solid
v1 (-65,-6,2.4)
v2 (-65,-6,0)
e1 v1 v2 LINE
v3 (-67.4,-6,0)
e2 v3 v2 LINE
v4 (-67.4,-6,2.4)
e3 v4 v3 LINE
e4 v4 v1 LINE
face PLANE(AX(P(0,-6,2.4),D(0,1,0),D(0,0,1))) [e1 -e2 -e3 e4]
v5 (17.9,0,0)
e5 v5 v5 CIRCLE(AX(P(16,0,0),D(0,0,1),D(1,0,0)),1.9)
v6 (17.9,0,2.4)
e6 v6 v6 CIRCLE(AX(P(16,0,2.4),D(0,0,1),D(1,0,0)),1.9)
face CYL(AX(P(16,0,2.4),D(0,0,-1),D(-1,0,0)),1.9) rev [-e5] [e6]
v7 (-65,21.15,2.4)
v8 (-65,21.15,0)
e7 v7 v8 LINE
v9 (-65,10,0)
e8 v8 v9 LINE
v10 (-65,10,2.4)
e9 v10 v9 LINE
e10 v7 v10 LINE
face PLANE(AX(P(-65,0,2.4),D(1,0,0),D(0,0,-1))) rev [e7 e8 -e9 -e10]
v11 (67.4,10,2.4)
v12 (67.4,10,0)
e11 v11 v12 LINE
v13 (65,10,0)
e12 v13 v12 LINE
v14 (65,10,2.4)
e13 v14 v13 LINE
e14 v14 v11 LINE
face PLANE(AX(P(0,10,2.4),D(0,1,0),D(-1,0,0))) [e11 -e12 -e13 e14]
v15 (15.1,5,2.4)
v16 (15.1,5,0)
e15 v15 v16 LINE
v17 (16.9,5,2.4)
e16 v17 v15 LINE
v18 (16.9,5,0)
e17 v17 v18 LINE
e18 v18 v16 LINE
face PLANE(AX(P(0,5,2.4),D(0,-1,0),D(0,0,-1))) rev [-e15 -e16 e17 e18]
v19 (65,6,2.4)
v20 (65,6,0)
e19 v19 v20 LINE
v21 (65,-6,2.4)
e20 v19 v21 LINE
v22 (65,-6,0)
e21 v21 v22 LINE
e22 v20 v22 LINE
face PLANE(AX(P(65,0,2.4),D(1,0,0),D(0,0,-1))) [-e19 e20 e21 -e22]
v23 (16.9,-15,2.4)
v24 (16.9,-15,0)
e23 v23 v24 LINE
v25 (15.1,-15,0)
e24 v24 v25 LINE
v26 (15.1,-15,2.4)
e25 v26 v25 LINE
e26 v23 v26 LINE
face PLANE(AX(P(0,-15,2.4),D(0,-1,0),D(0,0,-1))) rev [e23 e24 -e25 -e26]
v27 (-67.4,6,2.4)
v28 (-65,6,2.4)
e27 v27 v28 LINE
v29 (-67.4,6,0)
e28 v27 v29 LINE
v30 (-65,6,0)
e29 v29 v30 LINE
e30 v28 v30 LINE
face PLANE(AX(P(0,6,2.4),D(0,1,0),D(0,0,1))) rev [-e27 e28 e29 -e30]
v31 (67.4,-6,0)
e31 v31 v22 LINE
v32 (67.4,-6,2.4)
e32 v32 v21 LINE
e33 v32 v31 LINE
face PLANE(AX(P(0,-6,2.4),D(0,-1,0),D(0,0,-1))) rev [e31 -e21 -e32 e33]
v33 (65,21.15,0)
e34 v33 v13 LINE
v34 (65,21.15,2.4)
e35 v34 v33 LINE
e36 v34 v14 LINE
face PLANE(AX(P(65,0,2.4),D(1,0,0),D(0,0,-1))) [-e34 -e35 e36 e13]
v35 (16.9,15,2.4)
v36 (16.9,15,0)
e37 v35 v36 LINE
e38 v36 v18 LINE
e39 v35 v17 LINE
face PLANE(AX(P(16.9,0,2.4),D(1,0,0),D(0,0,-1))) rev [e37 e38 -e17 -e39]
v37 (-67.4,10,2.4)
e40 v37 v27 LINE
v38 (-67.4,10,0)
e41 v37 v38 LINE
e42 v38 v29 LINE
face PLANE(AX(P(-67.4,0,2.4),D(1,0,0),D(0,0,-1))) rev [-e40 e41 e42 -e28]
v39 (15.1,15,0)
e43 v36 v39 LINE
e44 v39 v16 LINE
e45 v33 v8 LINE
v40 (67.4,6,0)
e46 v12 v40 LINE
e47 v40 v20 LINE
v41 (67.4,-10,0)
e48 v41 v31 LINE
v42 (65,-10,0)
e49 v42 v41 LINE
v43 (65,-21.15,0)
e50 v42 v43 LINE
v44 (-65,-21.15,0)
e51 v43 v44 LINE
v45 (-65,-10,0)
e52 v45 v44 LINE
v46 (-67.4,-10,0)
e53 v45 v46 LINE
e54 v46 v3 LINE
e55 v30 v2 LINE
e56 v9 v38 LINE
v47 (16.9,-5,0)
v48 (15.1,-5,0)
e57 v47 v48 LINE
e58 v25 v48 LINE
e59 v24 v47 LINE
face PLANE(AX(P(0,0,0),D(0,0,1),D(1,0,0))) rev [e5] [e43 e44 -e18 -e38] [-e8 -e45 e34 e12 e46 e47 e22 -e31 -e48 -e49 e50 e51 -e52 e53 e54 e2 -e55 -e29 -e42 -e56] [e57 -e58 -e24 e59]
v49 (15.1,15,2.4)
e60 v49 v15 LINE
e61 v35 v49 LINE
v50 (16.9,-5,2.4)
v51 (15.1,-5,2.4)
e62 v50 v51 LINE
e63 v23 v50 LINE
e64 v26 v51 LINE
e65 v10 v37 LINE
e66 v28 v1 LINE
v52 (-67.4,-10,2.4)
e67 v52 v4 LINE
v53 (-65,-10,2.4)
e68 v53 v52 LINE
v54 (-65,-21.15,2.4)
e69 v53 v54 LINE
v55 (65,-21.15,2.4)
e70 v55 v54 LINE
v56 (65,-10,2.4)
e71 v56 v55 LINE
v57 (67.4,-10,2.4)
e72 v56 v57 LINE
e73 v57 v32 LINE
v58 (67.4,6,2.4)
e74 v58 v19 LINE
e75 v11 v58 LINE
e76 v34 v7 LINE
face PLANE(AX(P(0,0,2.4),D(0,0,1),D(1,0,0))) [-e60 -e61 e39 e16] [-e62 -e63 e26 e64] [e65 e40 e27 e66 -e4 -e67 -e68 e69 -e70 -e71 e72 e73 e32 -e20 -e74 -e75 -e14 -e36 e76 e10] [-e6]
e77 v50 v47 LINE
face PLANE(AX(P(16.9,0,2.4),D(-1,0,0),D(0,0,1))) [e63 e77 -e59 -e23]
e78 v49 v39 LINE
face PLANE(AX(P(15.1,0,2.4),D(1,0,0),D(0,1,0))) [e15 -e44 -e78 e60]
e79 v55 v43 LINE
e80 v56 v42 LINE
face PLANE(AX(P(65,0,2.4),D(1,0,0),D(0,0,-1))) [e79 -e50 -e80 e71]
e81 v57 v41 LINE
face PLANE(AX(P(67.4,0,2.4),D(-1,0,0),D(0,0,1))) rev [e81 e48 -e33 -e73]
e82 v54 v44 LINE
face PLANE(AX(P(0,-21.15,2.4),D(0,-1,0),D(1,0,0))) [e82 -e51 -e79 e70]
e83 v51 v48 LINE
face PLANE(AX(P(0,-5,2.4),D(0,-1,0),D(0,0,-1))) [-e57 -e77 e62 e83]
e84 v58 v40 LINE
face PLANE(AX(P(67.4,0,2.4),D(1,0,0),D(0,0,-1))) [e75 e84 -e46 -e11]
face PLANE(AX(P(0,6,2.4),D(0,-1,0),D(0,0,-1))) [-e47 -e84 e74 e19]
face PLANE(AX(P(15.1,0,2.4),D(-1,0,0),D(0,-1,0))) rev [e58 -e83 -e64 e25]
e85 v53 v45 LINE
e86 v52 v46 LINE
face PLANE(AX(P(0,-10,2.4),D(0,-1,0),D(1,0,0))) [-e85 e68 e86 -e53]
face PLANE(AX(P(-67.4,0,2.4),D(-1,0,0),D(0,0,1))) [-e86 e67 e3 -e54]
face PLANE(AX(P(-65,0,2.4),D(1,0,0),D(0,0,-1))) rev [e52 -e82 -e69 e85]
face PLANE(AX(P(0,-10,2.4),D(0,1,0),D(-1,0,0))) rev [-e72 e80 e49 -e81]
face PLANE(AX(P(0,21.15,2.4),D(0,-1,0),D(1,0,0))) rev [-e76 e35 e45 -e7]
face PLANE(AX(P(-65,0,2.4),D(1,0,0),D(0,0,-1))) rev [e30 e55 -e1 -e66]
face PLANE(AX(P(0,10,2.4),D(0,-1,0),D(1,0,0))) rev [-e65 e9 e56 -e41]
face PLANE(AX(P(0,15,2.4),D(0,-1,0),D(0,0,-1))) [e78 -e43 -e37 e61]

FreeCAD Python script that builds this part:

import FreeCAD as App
import Part
import Sketcher

doc = App.newDocument("Part")
body = doc.addObject("PartDesign::Body", "Body")

# Sketch on XY plane
sketch1 = body.newObject("Sketcher::SketchObject", "Sketch")
sketch1.AttachmentSupport = (doc.getObject("XY_Plane"), [""])
sketch1.MapMode = "FlatFace"
sketch1.addGeometry(Part.LineSegment(App.Vector(65, 21.1, 0), App.Vector(-65, 21.1, 0)), False)
sketch1.addGeometry(Part.LineSegment(App.Vector(-65, 21.1, 0), App.Vector(-65, 10, 0)), False)
sketch1.addGeometry(Part.LineSegment(App.Vector(-65, 10, 0), App.Vector(-67.4, 10, 0)), False)
sketch1.addGeometry(Part.LineSegment(App.Vector(-67.4, 10, 0), App.Vector(-67.4, 6, 0)), False)
sketch1.addGeometry(Part.LineSegment(App.Vector(-67.4, 6, 0), App.Vector(-65, 6, 0)), False)
sketch1.addGeometry(Part.LineSegment(App.Vector(-65, 6, 0), App.Vector(-65, -6, 0)), False)
sketch1.addGeometry(Part.LineSegment(App.Vector(-65, -6, 0), App.Vector(-67.4, -6, 0)), False)
sketch1.addGeometry(Part.LineSegment(App.Vector(-67.4, -6, 0), App.Vector(-67.4, -10, 0)), False)
sketch1.addGeometry(Part.LineSegment(App.Vector(-67.4, -10, 0), App.Vector(-65, -10, 0)), False)
sketch1.addGeometry(Part.LineSegment(App.Vector(-65, -10, 0), App.Vector(-65, -21.1, 0)), False)
sketch1.addGeometry(Part.LineSegment(App.Vector(-65, -21.1, 0), App.Vector(65, -21.1, 0)), False)
sketch1.addGeometry(Part.LineSegment(App.Vector(65, -21.1, 0), App.Vector(65, -10, 0)), False)
sketch1.addGeometry(Part.LineSegment(App.Vector(65, -10, 0), App.Vector(67.4, -10, 0)), False)
sketch1.addGeometry(Part.LineSegment(App.Vector(67.4, -10, 0), App.Vector(67.4, -6, 0)), False)
sketch1.addGeometry(Part.LineSegment(App.Vector(67.4, -6, 0), App.Vector(65, -6, 0)), False)
sketch1.addGeometry(Part.LineSegment(App.Vector(65, -6, 0), App.Vector(65, 6, 0)), False)
sketch1.addGeometry(Part.LineSegment(App.Vector(65, 6, 0), App.Vector(67.4, 6, 0)), False)
sketch1.addGeometry(Part.LineSegment(App.Vector(67.4, 6, 0), App.Vector(67.4, 10, 0)), False)
sketch1.addGeometry(Part.LineSegment(App.Vector(67.4, 10, 0), App.Vector(65, 10, 0)), False)
sketch1.addGeometry(Part.LineSegment(App.Vector(65, 10, 0), App.Vector(65, 21.1, 0)), False)
sketch1.addGeometry(Part.LineSegment(App.Vector(16.9, -15, 0), App.Vector(15.1, -15, 0)), False)
sketch1.addGeometry(Part.LineSegment(App.Vector(15.1, -15, 0), App.Vector(15.1, -5, 0)), False)
sketch1.addGeometry(Part.LineSegment(App.Vector(15.1, -5, 0), App.Vector(16.9, -5, 0)), False)
sketch1.addGeometry(Part.LineSegment(App.Vector(16.9, -5, 0), App.Vector(16.9, -15, 0)), False)
sketch1.addGeometry(Part.Circle(App.Vector(16, 0, 0), App.Vector(0, 0, 1), 1.9), False)
sketch1.addGeometry(Part.LineSegment(App.Vector(16.9, 15, 0), App.Vector(16.9, 5, 0)), False)
sketch1.addGeometry(Part.LineSegment(App.Vector(16.9, 5, 0), App.Vector(15.1, 5, 0)), False)
sketch1.addGeometry(Part.LineSegment(App.Vector(15.1, 5, 0), App.Vector(15.1, 15, 0)), False)
sketch1.addGeometry(Part.LineSegment(App.Vector(15.1, 15, 0), App.Vector(16.9, 15, 0)), False)
sketch1.addConstraint(Sketcher.Constraint("Coincident", 0, 2, 1, 1))
sketch1.addConstraint(Sketcher.Constraint("Coincident", 1, 2, 2, 1))
sketch1.addConstraint(Sketcher.Constraint("Coincident", 2, 2, 3, 1))
sketch1.addConstraint(Sketcher.Constraint("Coincident", 3, 2, 4, 1))
sketch1.addConstraint(Sketcher.Constraint("Coincident", 4, 2, 5, 1))
sketch1.addConstraint(Sketcher.Constraint("Coincident", 5, 2, 6, 1))
sketch1.addConstraint(Sketcher.Constraint("Coincident", 6, 2, 7, 1))
sketch1.addConstraint(Sketcher.Constraint("Coincident", 7, 2, 8, 1))
sketch1.addConstraint(Sketcher.Constraint("Coincident", 8, 2, 9, 1))
sketch1.addConstraint(Sketcher.Constraint("Coincident", 9, 2, 10, 1))
sketch1.addConstraint(Sketcher.Constraint("Coincident", 10, 2, 11, 1))
sketch1.addConstraint(Sketcher.Constraint("Coincident", 11, 2, 12, 1))
sketch1.addConstraint(Sketcher.Constraint("Coincident", 12, 2, 13, 1))
sketch1.addConstraint(Sketcher.Constraint("Coincident", 13, 2, 14, 1))
sketch1.addConstraint(Sketcher.Constraint("Coincident", 14, 2, 15, 1))
sketch1.addConstraint(Sketcher.Constraint("Coincident", 15, 2, 16, 1))
sketch1.addConstraint(Sketcher.Constraint("Coincident", 16, 2, 17, 1))
sketch1.addConstraint(Sketcher.Constraint("Coincident", 17, 2, 18, 1))
sketch1.addConstraint(Sketcher.Constraint("Coincident", 18, 2, 19, 1))
sketch1.addConstraint(Sketcher.Constraint("Coincident", 19, 2, 0, 1))
sketch1.addConstraint(Sketcher.Constraint("Coincident", 20, 2, 21, 1))
sketch1.addConstraint(Sketcher.Constraint("Coincident", 21, 2, 22, 1))
sketch1.addConstraint(Sketcher.Constraint("Coincident", 22, 2, 23, 1))
sketch1.addConstraint(Sketcher.Constraint("Coincident", 23, 2, 20, 1))
sketch1.addConstraint(Sketcher.Constraint("Coincident", 25, 2, 26, 1))
sketch1.addConstraint(Sketcher.Constraint("Coincident", 26, 2, 27, 1))
sketch1.addConstraint(Sketcher.Constraint("Coincident", 27, 2, 28, 1))
sketch1.addConstraint(Sketcher.Constraint("Coincident", 28, 2, 25, 1))
sketch1.addConstraint(Sketcher.Constraint("Horizontal", 0))
sketch1.addConstraint(Sketcher.Constraint("Vertical", 1))
sketch1.addConstraint(Sketcher.Constraint("Horizontal", 2))
sketch1.addConstraint(Sketcher.Constraint("Vertical", 3))
sketch1.addConstraint(Sketcher.Constraint("Horizontal", 4))
sketch1.addConstraint(Sketcher.Constraint("Vertical", 5))
sketch1.addConstraint(Sketcher.Constraint("Horizontal", 6))
sketch1.addConstraint(Sketcher.Constraint("Vertical", 7))
sketch1.addConstraint(Sketcher.Constraint("Horizontal", 8))
sketch1.addConstraint(Sketcher.Constraint("Vertical", 9))
sketch1.addConstraint(Sketcher.Constraint("Horizontal", 10))
sketch1.addConstraint(Sketcher.Constraint("Vertical", 11))
sketch1.addConstraint(Sketcher.Constraint("Horizontal", 12))
sketch1.addConstraint(Sketcher.Constraint("Vertical", 13))
sketch1.addConstraint(Sketcher.Constraint("Horizontal", 14))
sketch1.addConstraint(Sketcher.Constraint("Vertical", 15))
sketch1.addConstraint(Sketcher.Constraint("Horizontal", 16))
sketch1.addConstraint(Sketcher.Constraint("Vertical", 17))
sketch1.addConstraint(Sketcher.Constraint("Horizontal", 18))
sketch1.addConstraint(Sketcher.Constraint("Vertical", 19))
sketch1.addConstraint(Sketcher.Constraint("Horizontal", 20))
sketch1.addConstraint(Sketcher.Constraint("Vertical", 21))
sketch1.addConstraint(Sketcher.Constraint("Horizontal", 22))
sketch1.addConstraint(Sketcher.Constraint("Vertical", 23))
sketch1.addConstraint(Sketcher.Constraint("Vertical", 25))
sketch1.addConstraint(Sketcher.Constraint("Horizontal", 26))
sketch1.addConstraint(Sketcher.Constraint("Vertical", 27))
sketch1.addConstraint(Sketcher.Constraint("Horizontal", 28))
sketch1.addConstraint(Sketcher.Constraint("Symmetric", 0, 2, 10, 2, -1, 1))
sketch1.addConstraint(Sketcher.Constraint("Symmetric", 2, 2, 12, 2, -1, 1))
sketch1.addConstraint(Sketcher.Constraint("Symmetric", 4, 2, 14, 2, -1, 1))
sketch1.addConstraint(Sketcher.Constraint("Symmetric", 6, 2, 16, 2, -1, 1))
sketch1.addConstraint(Sketcher.Constraint("Symmetric", 8, 2, 18, 2, -1, 1))
sketch1.addConstraint(Sketcher.Constraint("Symmetric", 8, 2, 11, 2, -2))
sketch1.addConstraint(Sketcher.Constraint("Symmetric", 6, 2, 13, 2, -2))
sketch1.addConstraint(Sketcher.Constraint("Symmetric", 22, 2, 25, 2, -1))
sketch1.addConstraint(Sketcher.Constraint("Symmetric", 20, 2, 27, 2, -1))
sketch1.addConstraint(Sketcher.Constraint("PointOnObject", 24, 3, -1))
sketch1.addConstraint(Sketcher.Constraint("Vertical", 1, 2, 4, 2))
sketch1.addConstraint(Sketcher.Constraint("Diameter", 24, 3.8))
sketch1.addConstraint(Sketcher.Constraint("DistanceX", 0, 2, 0, 1, 130.0))
sketch1.addConstraint(Sketcher.Constraint("DistanceY", 3, 2, 3, 1, 4.0))
sketch1.addConstraint(Sketcher.Constraint("DistanceY", 5, 2, 5, 1, 12.0))
sketch1.addConstraint(Sketcher.Constraint("DistanceY", 21, 1, 21, 2, 10.0))
sketch1.addConstraint(Sketcher.Constraint("DistanceX", 2, 2, 2, 1, 2.4))
sketch1.addConstraint(Sketcher.Constraint("DistanceX", 20, 2, 20, 1, 1.8))
sketch1.addConstraint(Sketcher.Constraint("DistanceX", -1, 1, 24, 3, 16.0))
sketch1.addConstraint(Sketcher.Constraint("DistanceY", 20, 2, -1, 1, 15.0))
sketch1.addConstraint(Sketcher.Constraint("DistanceY", 1, 2, 1, 1, 11.15))
sketch1.addConstraint(Sketcher.Constraint("DistanceX", -1, 1, 20, 2, 15.1))
pad1 = body.newObject("PartDesign::Pad", "Pad")
pad1.Profile = sketch1
pad1.Length = 2.4

doc.recompute()
